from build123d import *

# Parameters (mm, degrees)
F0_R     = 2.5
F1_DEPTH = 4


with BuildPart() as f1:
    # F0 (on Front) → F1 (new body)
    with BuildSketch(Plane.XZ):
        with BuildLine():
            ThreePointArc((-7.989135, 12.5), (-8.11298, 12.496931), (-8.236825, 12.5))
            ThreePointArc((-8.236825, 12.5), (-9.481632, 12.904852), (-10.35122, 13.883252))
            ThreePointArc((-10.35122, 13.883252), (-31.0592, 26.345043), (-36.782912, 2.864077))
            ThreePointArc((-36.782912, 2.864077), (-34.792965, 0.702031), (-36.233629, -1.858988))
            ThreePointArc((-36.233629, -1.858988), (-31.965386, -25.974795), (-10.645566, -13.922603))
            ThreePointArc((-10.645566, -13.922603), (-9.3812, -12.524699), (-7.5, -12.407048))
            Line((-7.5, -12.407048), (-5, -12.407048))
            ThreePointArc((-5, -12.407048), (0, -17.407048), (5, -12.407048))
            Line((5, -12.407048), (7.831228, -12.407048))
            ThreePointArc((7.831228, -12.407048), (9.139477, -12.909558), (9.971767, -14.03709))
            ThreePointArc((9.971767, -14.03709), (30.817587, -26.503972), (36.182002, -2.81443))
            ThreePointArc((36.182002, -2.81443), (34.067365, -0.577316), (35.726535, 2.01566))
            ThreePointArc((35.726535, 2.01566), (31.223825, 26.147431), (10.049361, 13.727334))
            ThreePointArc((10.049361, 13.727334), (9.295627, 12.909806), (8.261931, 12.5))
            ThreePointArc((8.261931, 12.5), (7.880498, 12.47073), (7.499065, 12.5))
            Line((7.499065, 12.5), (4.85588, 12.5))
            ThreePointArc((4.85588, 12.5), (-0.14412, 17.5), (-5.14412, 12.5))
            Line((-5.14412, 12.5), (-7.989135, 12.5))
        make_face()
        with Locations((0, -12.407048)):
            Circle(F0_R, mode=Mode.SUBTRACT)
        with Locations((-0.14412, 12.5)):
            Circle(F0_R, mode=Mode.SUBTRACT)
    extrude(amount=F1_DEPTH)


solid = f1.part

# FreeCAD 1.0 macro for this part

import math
import FreeCAD as App
import Part
import Sketcher

V = App.Vector
Q = App.Units.Quantity

doc = App.newDocument("Part")
body = doc.addObject("PartDesign::Body", "Body")

# Sketch on XZ plane
sketch1 = body.newObject("Sketcher::SketchObject", "Sketch")
sketch1.AttachmentSupport = (doc.getObject("XZ_Plane"), [""])
sketch1.MapMode = "FlatFace"
sketch1.addGeometry([
    Part.ArcOfCircle(Part.Circle(V(-8.11298, 14.997257, 0), V(0, 0, 1), 2.500326), math.radians(-92.83911), math.radians(-87.16089)),  # 0
    Part.ArcOfCircle(Part.Circle(V(-8.112981, 14.996928, 0), V(0, 0, 1), 2.499997), math.radians(-153.546531), math.radians(-92.839453)),  # 1
    Part.ArcOfCircle(Part.Circle(V(-25.287304, 12.5, 0), V(0, 0, 1), 15), math.radians(5.291152), math.radians(219.97063)),  # 2
    Part.ArcOfCircle(Part.Circle(V(-37.276228, 0.413233, 0), V(0, 0, 1), 2.5), math.radians(-65.352176), math.radians(78.619345)),  # 3
    Part.ArcOfCircle(Part.Circle(V(-25.568806, -12.407048, 0), V(0, 0, 1), 15), math.radians(135.315373), math.radians(354.20111)),  # 4
    Part.ArcOfCircle(Part.Circle(V(-8.296066, -14.776917, 0), V(0, 0, 1), 2.5), math.radians(71.432204), math.radians(160.01796)),  # 5
    Part.LineSegment(V(-7.5, -12.407048, 0), V(-5, -12.407048, 0)),  # 6
    Part.ArcOfCircle(Part.Circle(V(0, -12.407048, 0), V(0, 0, 1), 5), math.radians(180), math.radians(360)),  # 7
    Part.LineSegment(V(5, -12.407048, 0), V(7.831228, -12.407048, 0)),  # 8
    Part.ArcOfCircle(Part.Circle(V(7.624868, -14.898514, 0), V(0, 0, 1), 2.499998), math.radians(20.15555), math.radians(85.265176)),  # 9
    Part.ArcOfCircle(Part.Circle(V(24.913375, -12.714836, 0), V(0, 0, 1), 15), math.radians(-174.942797), math.radians(41.301937)),  # 10
    Part.ArcOfCircle(Part.Circle(V(36.556323, -0.342613, 0), V(0, 0, 1), 2.5), math.radians(109.385065), math.radians(261.388811)),  # 11
    Part.ArcOfCircle(Part.Circle(V(24.999065, 12.5, 0), V(0, 0, 1), 15), math.radians(-44.343305), math.radians(175.306684)),  # 12
    Part.ArcOfCircle(Part.Circle(V(7.880497, 14.970732, 0), V(0, 0, 1), 2.500002), math.radians(-81.223908), math.radians(-29.825423)),  # 13
    Part.ArcOfCircle(Part.Circle(V(7.880498, 14.970694, 0), V(0, 0, 1), 2.499964), math.radians(-98.776206), math.radians(-81.223794)),  # 14
    Part.LineSegment(V(7.499065, 12.5, 0), V(4.85588, 12.5, 0)),  # 15
    Part.ArcOfCircle(Part.Circle(V(-0.14412, 12.5, 0), V(0, 0, 1), 5), math.radians(0), math.radians(180)),  # 16
    Part.LineSegment(V(-5.14412, 12.5, 0), V(-7.989135, 12.5, 0)),  # 17
    Part.Circle(V(0, -12.407048, 0), V(0, 0, 1), 2.5),  # 18
    Part.Circle(V(-0.14412, 12.5, 0), V(0, 0, 1), 2.5),  # 19
], False)
sketch1.addConstraint([
    Sketcher.Constraint("Coincident", 0, 1, 1, 2),
    Sketcher.Constraint("Coincident", 1, 1, 2, 1),
    Sketcher.Constraint("Coincident", 2, 2, 3, 2),
    Sketcher.Constraint("Coincident", 3, 1, 4, 1),
    Sketcher.Constraint("Coincident", 4, 2, 5, 2),
    Sketcher.Constraint("Coincident", 5, 1, 6, 1),
    Sketcher.Constraint("Coincident", 6, 2, 7, 1),
    Sketcher.Constraint("Coincident", 7, 2, 8, 1),
    Sketcher.Constraint("Coincident", 8, 2, 9, 2),
    Sketcher.Constraint("Coincident", 9, 1, 10, 1),
    Sketcher.Constraint("Coincident", 10, 2, 11, 2),
    Sketcher.Constraint("Coincident", 11, 1, 12, 1),
    Sketcher.Constraint("Coincident", 12, 2, 13, 2),
    Sketcher.Constraint("Coincident", 13, 1, 14, 2),
    Sketcher.Constraint("Coincident", 14, 1, 15, 1),
    Sketcher.Constraint("Coincident", 15, 2, 16, 1),
    Sketcher.Constraint("Coincident", 16, 2, 17, 1),
    Sketcher.Constraint("Coincident", 17, 2, 0, 2),
    Sketcher.Constraint("Horizontal", 6),
    Sketcher.Constraint("Horizontal", 8),
    Sketcher.Constraint("Horizontal", 15),
    Sketcher.Constraint("Horizontal", 17),
    Sketcher.Constraint("Coincident", 18, 3, 7, 3),
    Sketcher.Constraint("Coincident", 19, 3, 16, 3),
    Sketcher.Constraint("PointOnObject", 7, 3, -2),
    Sketcher.Constraint("Diameter", 18, Q("5 mm")),
    Sketcher.Constraint("Diameter", 19, Q("5 mm")),
    Sketcher.Constraint("Radius", 2, Q("15 mm")),
    Sketcher.Constraint("Radius", 4, Q("15 mm")),
    Sketcher.Constraint("Radius", 7, Q("5 mm")),
    Sketcher.Constraint("Radius", 10, Q("15 mm")),
    Sketcher.Constraint("Radius", 12, Q("15 mm")),
    Sketcher.Constraint("Radius", 16, Q("5 mm")),
    Sketcher.Constraint("Radius", 3, Q("2.5 mm")),
    Sketcher.Constraint("Radius", 5, Q("2.5 mm")),
    Sketcher.Constraint("Radius", 11, Q("2.5 mm")),
    Sketcher.Constraint("DistanceX", 6, 1, 6, 2, Q("2.5 mm")),
    Sketcher.Constraint("DistanceY", -1, 1, 2, 3, Q("12.5 mm")),
    Sketcher.Constraint("DistanceY", -1, 1, 12, 3, Q("12.5 mm")),
    Sketcher.Constraint("DistanceY", -1, 1, 16, 3, Q("12.5 mm")),
    Sketcher.Constraint("DistanceY", -1, 1, 0, 1, Q("12.5 mm")),
    Sketcher.Constraint("DistanceY", -1, 1, 13, 1, Q("12.5 mm")),
    Sketcher.Constraint("DistanceY", -1, 1, 14, 1, Q("12.5 mm")),
    Sketcher.Constraint("DistanceY", -1, 1, 16, 2, Q("12.5 mm")),
    Sketcher.Constraint("DistanceX", -1, 1, 10, 2, Q("36.182002 mm")),
    Sketcher.Constraint("Radius", 0, Q("2.500326 mm")),
    Sketcher.Constraint("Radius", 1, Q("2.499997 mm")),
    Sketcher.Constraint("Radius", 9, Q("2.499998 mm")),
    Sketcher.Constraint("Radius", 13, Q("2.500002 mm")),
    Sketcher.Constraint("Radius", 14, Q("2.499964 mm")),
    Sketcher.Constraint("DistanceX", 8, 1, 8, 2, Q("2.831228 mm")),
    Sketcher.Constraint("DistanceX", -1, 1, 14, 3, Q("7.880498 mm")),
    Sketcher.Constraint("DistanceX", 4, 3, 2, 3, Q("0.281502 mm")),
    Sketcher.Constraint("DistanceY", 9, 3, 11, 3, Q("14.555902 mm")),
    Sketcher.Constraint("DistanceX", 1, 1, 16, 3, Q("10.2071 mm")),
    Sketcher.Constraint("DistanceX", 3, 3, 3, 1, Q("1.042599 mm")),
    Sketcher.Constraint("DistanceX", 4, 2, 5, 3, Q("2.3495 mm")),
    Sketcher.Constraint("DistanceX", 9, 3, 9, 1, Q("2.346899 mm")),
    Sketcher.Constraint("DistanceY", 12, 2, 13, 3, Q("1.243398 mm")),
    Sketcher.Constraint("DistanceX", 15, 2, 15, 1, Q("2.643185 mm")),
    Sketcher.Constraint("DistanceX", 17, 2, 17, 1, Q("2.845015 mm")),
    Sketcher.Constraint("DistanceX", 0, 3, -1, 1, Q("8.11298 mm")),
    Sketcher.Constraint("DistanceX", 1, 3, -1, 1, Q("8.112981 mm")),
    Sketcher.Constraint("DistanceX", 16, 3, -1, 1, Q("0.14412 mm")),
    Sketcher.Constraint("DistanceX", 2, 2, -1, 1, Q("36.782912 mm")),
    Sketcher.Constraint("DistanceX", 3, 1, -1, 1, Q("36.233629 mm")),
    Sketcher.Constraint("DistanceY", 9, 1, -1, 1, Q("14.03709 mm")),
    Sketcher.Constraint("DistanceY", 10, 2, -1, 1, Q("2.81443 mm")),
    Sketcher.Constraint("DistanceY", -1, 1, 11, 1, Q("2.01566 mm")),
    Sketcher.Constraint("DistanceX", 4, 3, 5, 3, Q("17.27274 mm")),
    Sketcher.Constraint("DistanceY", 5, 3, 7, 3, Q("2.369869 mm")),
    Sketcher.Constraint("DistanceX", 1, 3, 9, 3, Q("15.737849 mm")),
])
pad1 = body.newObject("PartDesign::Pad", "Pad")
pad1.Profile = sketch1
pad1.Length = 4

doc.recompute()
